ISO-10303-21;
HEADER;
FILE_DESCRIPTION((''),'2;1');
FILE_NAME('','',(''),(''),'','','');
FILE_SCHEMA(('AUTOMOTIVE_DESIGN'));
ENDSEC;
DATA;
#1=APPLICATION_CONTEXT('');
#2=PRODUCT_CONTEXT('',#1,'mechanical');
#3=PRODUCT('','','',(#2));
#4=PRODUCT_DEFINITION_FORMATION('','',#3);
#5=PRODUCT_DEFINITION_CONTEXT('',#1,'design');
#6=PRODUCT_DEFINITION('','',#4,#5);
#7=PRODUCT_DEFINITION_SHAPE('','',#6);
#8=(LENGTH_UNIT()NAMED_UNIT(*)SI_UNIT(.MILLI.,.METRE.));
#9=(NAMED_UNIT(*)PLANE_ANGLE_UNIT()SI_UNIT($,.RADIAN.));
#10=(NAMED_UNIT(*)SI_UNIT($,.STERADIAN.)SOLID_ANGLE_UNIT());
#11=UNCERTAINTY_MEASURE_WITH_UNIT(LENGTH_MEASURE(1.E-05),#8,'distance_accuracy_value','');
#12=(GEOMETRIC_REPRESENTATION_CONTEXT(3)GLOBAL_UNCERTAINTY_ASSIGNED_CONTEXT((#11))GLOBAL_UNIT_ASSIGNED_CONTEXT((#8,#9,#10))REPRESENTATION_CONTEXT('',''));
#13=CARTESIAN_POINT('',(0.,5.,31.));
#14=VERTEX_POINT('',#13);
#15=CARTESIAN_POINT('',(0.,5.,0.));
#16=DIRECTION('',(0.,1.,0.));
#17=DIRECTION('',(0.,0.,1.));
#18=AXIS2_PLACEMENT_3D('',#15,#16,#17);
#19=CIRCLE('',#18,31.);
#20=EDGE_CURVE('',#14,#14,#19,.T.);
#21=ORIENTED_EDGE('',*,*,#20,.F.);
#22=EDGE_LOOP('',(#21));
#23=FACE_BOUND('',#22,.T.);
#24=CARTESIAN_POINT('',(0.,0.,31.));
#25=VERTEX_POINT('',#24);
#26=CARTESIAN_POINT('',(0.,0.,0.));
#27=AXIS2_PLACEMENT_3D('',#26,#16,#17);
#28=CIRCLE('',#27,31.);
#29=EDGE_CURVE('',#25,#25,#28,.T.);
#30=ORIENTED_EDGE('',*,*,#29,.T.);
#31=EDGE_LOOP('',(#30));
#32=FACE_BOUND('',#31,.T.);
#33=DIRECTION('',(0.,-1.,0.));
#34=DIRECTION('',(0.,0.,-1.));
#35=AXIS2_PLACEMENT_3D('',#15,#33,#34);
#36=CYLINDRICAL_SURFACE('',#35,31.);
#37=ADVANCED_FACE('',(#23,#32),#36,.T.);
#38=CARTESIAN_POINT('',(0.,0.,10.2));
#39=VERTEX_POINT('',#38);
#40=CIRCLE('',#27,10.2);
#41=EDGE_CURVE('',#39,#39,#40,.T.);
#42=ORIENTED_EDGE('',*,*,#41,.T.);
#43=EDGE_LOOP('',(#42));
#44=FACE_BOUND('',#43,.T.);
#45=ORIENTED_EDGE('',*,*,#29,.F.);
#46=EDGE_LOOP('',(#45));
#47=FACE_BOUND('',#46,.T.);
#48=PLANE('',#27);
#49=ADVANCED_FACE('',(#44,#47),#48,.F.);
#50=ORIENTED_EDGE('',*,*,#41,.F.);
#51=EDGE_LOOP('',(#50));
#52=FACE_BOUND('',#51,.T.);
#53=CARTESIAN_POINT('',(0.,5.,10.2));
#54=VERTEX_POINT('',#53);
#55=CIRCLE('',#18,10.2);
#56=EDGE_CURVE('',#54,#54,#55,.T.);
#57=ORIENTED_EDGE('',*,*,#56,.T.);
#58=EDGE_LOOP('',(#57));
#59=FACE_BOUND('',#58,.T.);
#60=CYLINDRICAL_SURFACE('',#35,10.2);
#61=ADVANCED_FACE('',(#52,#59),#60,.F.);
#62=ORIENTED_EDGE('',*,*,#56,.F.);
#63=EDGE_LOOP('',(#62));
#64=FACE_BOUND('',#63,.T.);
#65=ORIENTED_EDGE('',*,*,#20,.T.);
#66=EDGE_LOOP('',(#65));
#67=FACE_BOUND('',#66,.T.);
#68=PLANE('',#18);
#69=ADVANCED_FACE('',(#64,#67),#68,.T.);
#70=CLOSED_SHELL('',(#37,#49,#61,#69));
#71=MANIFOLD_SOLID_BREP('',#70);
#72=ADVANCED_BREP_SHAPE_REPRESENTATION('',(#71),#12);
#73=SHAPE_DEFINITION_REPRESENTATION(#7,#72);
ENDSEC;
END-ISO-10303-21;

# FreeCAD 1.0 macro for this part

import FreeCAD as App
import Part
import Sketcher

V = App.Vector
Q = App.Units.Quantity

doc = App.newDocument("Part")
params = doc.addObject("Spreadsheet::Sheet", "Params")
for row, (alias, value) in enumerate([
    ("sketch1_diameter", "62 mm"),
    ("sketch1_diameter2", "20.4 mm"),
    ("pad1_length", "5 mm"),
], start=1):
    params.set(f"A{row}", alias)
    params.set(f"B{row}", "=" + value)
    params.setAlias(f"B{row}", alias)

body = doc.addObject("PartDesign::Body", "Body")

sketch1 = body.newObject("Sketcher::SketchObject", "Sketch")
sketch1.AttachmentSupport = (doc.getObject("XZ_Plane"), [""])
sketch1.MapMode = "FlatFace"
sketch1.addGeometry(Part.Circle(V(0, 0, 0), V(0, 0, 1), 31), False)
sketch1.addGeometry(Part.Circle(V(0, 0, 0), V(0, 0, 1), 10.2), False)
sketch1.addConstraint(Sketcher.Constraint("Coincident", 0, 3, -1, 1))
sketch1.addConstraint(Sketcher.Constraint("Coincident", 1, 3, -1, 1))
sketch1.addConstraint(Sketcher.Constraint("Diameter", 0, Q("62 mm")))
sketch1.addConstraint(Sketcher.Constraint("Diameter", 1, Q("20.4 mm")))
sketch1.setExpression("Constraints[2]", "Params.sketch1_diameter")
sketch1.setExpression("Constraints[3]", "Params.sketch1_diameter2")
pad1 = body.newObject("PartDesign::Pad", "Pad")
pad1.Profile = sketch1
pad1.setExpression("Length", "Params.pad1_length")
pad1.Reversed = True

doc.recompute()
